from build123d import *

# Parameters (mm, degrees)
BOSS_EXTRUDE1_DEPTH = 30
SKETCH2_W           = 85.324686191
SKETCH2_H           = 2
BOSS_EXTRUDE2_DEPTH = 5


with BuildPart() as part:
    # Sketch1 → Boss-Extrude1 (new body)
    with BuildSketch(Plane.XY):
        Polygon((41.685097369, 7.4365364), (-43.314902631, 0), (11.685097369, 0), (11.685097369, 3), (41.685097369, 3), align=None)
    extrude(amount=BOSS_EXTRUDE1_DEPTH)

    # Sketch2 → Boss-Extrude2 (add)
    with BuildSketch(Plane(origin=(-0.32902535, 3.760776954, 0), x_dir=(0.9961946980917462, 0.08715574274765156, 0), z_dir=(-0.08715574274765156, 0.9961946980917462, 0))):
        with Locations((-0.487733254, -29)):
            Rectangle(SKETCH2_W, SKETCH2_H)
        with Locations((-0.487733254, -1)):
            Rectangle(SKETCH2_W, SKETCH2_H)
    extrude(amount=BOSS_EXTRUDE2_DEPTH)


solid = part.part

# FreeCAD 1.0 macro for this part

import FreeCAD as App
import Part
import Sketcher
Q = App.Units.Quantity

doc = App.newDocument("Part")
params = doc.addObject("Spreadsheet::Sheet", "Params")
for row, (alias, value) in enumerate([
    ("sketch1_width", "55 mm"),
    ("sketch1_width2", "30 mm"),
    ("sketch1_height", "3 mm"),
    ("pad1_length", "30 mm"),
    ("sketch2_height", "2 mm"),
    ("pad2_length", "5 mm"),
], start=1):
    params.set(f"A{row}", alias)
    params.set(f"B{row}", "=" + value)
    params.setAlias(f"B{row}", alias)

body = doc.addObject("PartDesign::Body", "Body")

# Sketch on XY plane
sketch1 = body.newObject("Sketcher::SketchObject", "Sketch")
sketch1.AttachmentSupport = (doc.getObject("XY_Plane"), [""])
sketch1.MapMode = "FlatFace"
sketch1.addGeometry(Part.LineSegment(App.Vector(41.685097, 7.436536, 0), App.Vector(-43.314903, 0, 0)), False)
sketch1.addGeometry(Part.LineSegment(App.Vector(-43.314903, 0, 0), App.Vector(11.685097, 0, 0)), False)
sketch1.addGeometry(Part.LineSegment(App.Vector(11.685097, 0, 0), App.Vector(11.685097, 3, 0)), False)
sketch1.addGeometry(Part.LineSegment(App.Vector(11.685097, 3, 0), App.Vector(41.685097, 3, 0)), False)
sketch1.addGeometry(Part.LineSegment(App.Vector(41.685097, 3, 0), App.Vector(41.685097, 7.436536, 0)), False)
sketch1.addConstraint(Sketcher.Constraint("Coincident", 0, 2, 1, 1))
sketch1.addConstraint(Sketcher.Constraint("Coincident", 1, 2, 2, 1))
sketch1.addConstraint(Sketcher.Constraint("Coincident", 2, 2, 3, 1))
sketch1.addConstraint(Sketcher.Constraint("Coincident", 3, 2, 4, 1))
sketch1.addConstraint(Sketcher.Constraint("Coincident", 4, 2, 0, 1))
sketch1.addConstraint(Sketcher.Constraint("Horizontal", 1))
sketch1.addConstraint(Sketcher.Constraint("Vertical", 2))
sketch1.addConstraint(Sketcher.Constraint("Horizontal", 3))
sketch1.addConstraint(Sketcher.Constraint("Vertical", 4))
sketch1.addConstraint(Sketcher.Constraint("PointOnObject", 0, 2, -1))
sketch1.addConstraint(Sketcher.Constraint("DistanceX", 1, 1, 1, 2, Q("55 mm")))
sketch1.addConstraint(Sketcher.Constraint("DistanceX", 3, 1, 3, 2, Q("30 mm")))
sketch1.addConstraint(Sketcher.Constraint("DistanceY", 2, 1, 2, 2, Q("3 mm")))
sketch1.addConstraint(Sketcher.Constraint("Angle", 0, Q("-175 deg")))
sketch1.addConstraint(Sketcher.Constraint("DistanceX", 0, 2, -1, 1, Q("43.314903 mm")))
sketch1.setExpression("Constraints[10]", "Params.sketch1_width")
sketch1.setExpression("Constraints[11]", "Params.sketch1_width2")
sketch1.setExpression("Constraints[12]", "Params.sketch1_height")
pad1 = body.newObject("PartDesign::Pad", "Pad")
pad1.Profile = sketch1
pad1.setExpression("Length", "Params.pad1_length")

# Sketch on an angled plane
sketch2 = body.newObject("Sketcher::SketchObject", "Sketch001")
sketch2.Placement = App.Placement(App.Vector(-0.329025, 3.760777, 0), App.Rotation(App.Vector(0.996194698, 0.087155743, 0), App.Vector(0, 0, -1), App.Vector(-0.087155743, 0.996194698, 0), "ZXY"))
sketch2.addGeometry(Part.LineSegment(App.Vector(-43.150076, -28, 0), App.Vector(-43.150076, -30, 0)), False)
sketch2.addGeometry(Part.LineSegment(App.Vector(-43.150076, -30, 0), App.Vector(42.17461, -30, 0)), False)
sketch2.addGeometry(Part.LineSegment(App.Vector(42.17461, -30, 0), App.Vector(42.17461, -28, 0)), False)
sketch2.addGeometry(Part.LineSegment(App.Vector(42.17461, -28, 0), App.Vector(-43.150076, -28, 0)), False)
sketch2.addGeometry(Part.LineSegment(App.Vector(-43.150076, 0, 0), App.Vector(-43.150076, -2, 0)), False)
sketch2.addGeometry(Part.LineSegment(App.Vector(-43.150076, -2, 0), App.Vector(42.17461, -2, 0)), False)
sketch2.addGeometry(Part.LineSegment(App.Vector(42.17461, -2, 0), App.Vector(42.17461, 0, 0)), False)
sketch2.addGeometry(Part.LineSegment(App.Vector(42.17461, 0, 0), App.Vector(-43.150076, 0, 0)), False)
sketch2.addConstraint(Sketcher.Constraint("Coincident", 0, 2, 1, 1))
sketch2.addConstraint(Sketcher.Constraint("Coincident", 1, 2, 2, 1))
sketch2.addConstraint(Sketcher.Constraint("Coincident", 2, 2, 3, 1))
sketch2.addConstraint(Sketcher.Constraint("Coincident", 3, 2, 0, 1))
sketch2.addConstraint(Sketcher.Constraint("Coincident", 4, 2, 5, 1))
sketch2.addConstraint(Sketcher.Constraint("Coincident", 5, 2, 6, 1))
sketch2.addConstraint(Sketcher.Constraint("Coincident", 6, 2, 7, 1))
sketch2.addConstraint(Sketcher.Constraint("Coincident", 7, 2, 4, 1))
sketch2.addConstraint(Sketcher.Constraint("Vertical", 0))
sketch2.addConstraint(Sketcher.Constraint("Horizontal", 1))
sketch2.addConstraint(Sketcher.Constraint("Vertical", 2))
sketch2.addConstraint(Sketcher.Constraint("Horizontal", 3))
sketch2.addConstraint(Sketcher.Constraint("Vertical", 4))
sketch2.addConstraint(Sketcher.Constraint("Horizontal", 5))
sketch2.addConstraint(Sketcher.Constraint("Vertical", 6))
sketch2.addConstraint(Sketcher.Constraint("Horizontal", 7))
sketch2.addConstraint(Sketcher.Constraint("PointOnObject", 6, 2, -1))
sketch2.addConstraint(Sketcher.Constraint("Vertical", 3, 2, 4, 2))
sketch2.addConstraint(Sketcher.Constraint("Vertical", 2, 2, 5, 2))
sketch2.addConstraint(Sketcher.Constraint("Equal", 2, 4))
sketch2.addConstraint(Sketcher.Constraint("DistanceY", 0, 2, 0, 1, Q("2 mm")))
sketch2.addConstraint(Sketcher.Constraint("DistanceY", 0, 2, -1, 1, Q("30 mm")))
sketch2.addConstraint(Sketcher.Constraint("DistanceX", 1, 1, 1, 2, Q("85.324686 mm")))
sketch2.addConstraint(Sketcher.Constraint("DistanceX", -1, 1, 1, 2, Q("42.17461 mm")))
sketch2.setExpression("Constraints[20]", "Params.sketch2_height")
pad2 = body.newObject("PartDesign::Pad", "Pad001")
pad2.Profile = sketch2
pad2.setExpression("Length", "Params.pad2_length")

doc.recompute()
